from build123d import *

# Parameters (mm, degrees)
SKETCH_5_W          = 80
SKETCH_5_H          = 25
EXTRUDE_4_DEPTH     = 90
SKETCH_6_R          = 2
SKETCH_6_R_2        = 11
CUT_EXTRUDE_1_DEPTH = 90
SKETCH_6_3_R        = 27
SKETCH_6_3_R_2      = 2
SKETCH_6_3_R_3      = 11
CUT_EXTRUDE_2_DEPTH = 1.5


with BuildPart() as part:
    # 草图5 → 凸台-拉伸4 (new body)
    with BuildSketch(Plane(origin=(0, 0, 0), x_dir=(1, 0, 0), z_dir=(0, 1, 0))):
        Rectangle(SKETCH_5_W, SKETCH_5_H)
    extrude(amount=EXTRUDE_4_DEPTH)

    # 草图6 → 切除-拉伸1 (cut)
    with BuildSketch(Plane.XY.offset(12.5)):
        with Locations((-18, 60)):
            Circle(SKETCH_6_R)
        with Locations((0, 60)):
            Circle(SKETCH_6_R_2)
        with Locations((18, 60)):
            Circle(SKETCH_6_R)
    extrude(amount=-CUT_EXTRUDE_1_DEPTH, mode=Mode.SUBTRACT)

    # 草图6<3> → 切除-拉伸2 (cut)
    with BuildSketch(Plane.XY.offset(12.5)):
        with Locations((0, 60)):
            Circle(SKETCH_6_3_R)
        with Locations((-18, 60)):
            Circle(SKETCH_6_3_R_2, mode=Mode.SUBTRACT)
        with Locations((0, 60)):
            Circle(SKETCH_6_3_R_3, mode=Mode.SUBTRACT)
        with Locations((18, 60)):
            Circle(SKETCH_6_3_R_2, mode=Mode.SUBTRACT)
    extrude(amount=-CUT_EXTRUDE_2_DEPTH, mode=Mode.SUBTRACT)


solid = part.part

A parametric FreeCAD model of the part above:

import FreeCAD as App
import Part
import Sketcher


def add_polygon(sketch, points):
    """Adds a closed chain of lines whose ends are joined by coincident constraints."""
    first, n = sketch.GeometryCount, len(points)
    for a, b in zip(points, points[1:] + points[:1]):
        sketch.addGeometry(Part.LineSegment(App.Vector(*a, 0), App.Vector(*b, 0)), False)
    for i in range(n):
        sketch.addConstraint(Sketcher.Constraint("Coincident", first + i, 2, first + (i + 1) % n, 1))

doc = App.newDocument("Part")
body = doc.addObject("PartDesign::Body", "Body")

# Sketch on XZ plane
sketch1 = body.newObject("Sketcher::SketchObject", "Sketch")
sketch1.AttachmentSupport = (doc.getObject("XZ_Plane"), [""])
sketch1.MapMode = "FlatFace"
add_polygon(sketch1, [(-40, -12), (-40, 12), (40, 12), (40, -12)])  # lines 0-3
sketch1.addConstraint([
    Sketcher.Constraint("Vertical", 0),
    Sketcher.Constraint("Horizontal", 1),
    Sketcher.Constraint("Vertical", 2),
    Sketcher.Constraint("Horizontal", 3),
    Sketcher.Constraint("Symmetric", 0, 2, 2, 2, -1, 1),
    Sketcher.Constraint("DistanceX", 1, 1, 1, 2, 80.0),
    Sketcher.Constraint("DistanceY", 0, 1, 0, 2, 25.0),
])
pad1 = body.newObject("PartDesign::Pad", "Pad")
pad1.Profile = sketch1
pad1.Length = 90
pad1.Reversed = True

# Sketch on XY plane
sketch2 = body.newObject("Sketcher::SketchObject", "Sketch001")
sketch2.AttachmentSupport = (doc.getObject("XY_Plane"), [""])
sketch2.MapMode = "FlatFace"
sketch2.AttachmentOffset = App.Placement(App.Vector(0, 0, 12.5), App.Rotation())
sketch2.addGeometry([
    Part.Circle(App.Vector(-18, 60, 0), App.Vector(0, 0, 1), 2),
    Part.Circle(App.Vector(0, 60, 0), App.Vector(0, 0, 1), 11),
    Part.Circle(App.Vector(18, 60, 0), App.Vector(0, 0, 1), 2),
], False)
sketch2.addConstraint([
    Sketcher.Constraint("Equal", 0, 2),
    Sketcher.Constraint("Symmetric", 0, 3, 2, 3, -2),
    Sketcher.Constraint("PointOnObject", 1, 3, -2),
    Sketcher.Constraint("Horizontal", 0, 3, 1, 3),
    Sketcher.Constraint("Diameter", 0, 4.0),
    Sketcher.Constraint("Diameter", 1, 22.0),
    Sketcher.Constraint("DistanceX", 0, 3, -1, 1, 18.0),
    Sketcher.Constraint("DistanceY", -1, 1, 0, 3, 60.0),
])
pocket1 = body.newObject("PartDesign::Pocket", "Pocket")
pocket1.Profile = sketch2
pocket1.Length = 90

# Sketch on XY plane
sketch3 = body.newObject("Sketcher::SketchObject", "Sketch002")
sketch3.AttachmentSupport = (doc.getObject("XY_Plane"), [""])
sketch3.MapMode = "FlatFace"
sketch3.AttachmentOffset = App.Placement(App.Vector(0, 0, 12.5), App.Rotation())
sketch3.addGeometry([
    Part.Circle(App.Vector(0, 60, 0), App.Vector(0, 0, 1), 27),
    Part.Circle(App.Vector(-18, 60, 0), App.Vector(0, 0, 1), 2),
    Part.Circle(App.Vector(0, 60, 0), App.Vector(0, 0, 1), 11),
    Part.Circle(App.Vector(18, 60, 0), App.Vector(0, 0, 1), 2),
], False)
sketch3.addConstraint([
    Sketcher.Constraint("Coincident", 2, 3, 0, 3),
    Sketcher.Constraint("Equal", 1, 3),
    Sketcher.Constraint("Symmetric", 1, 3, 3, 3, -2),
    Sketcher.Constraint("PointOnObject", 0, 3, -2),
    Sketcher.Constraint("Horizontal", 0, 3, 1, 3),
    Sketcher.Constraint("Diameter", 0, 54.0),
    Sketcher.Constraint("Diameter", 1, 4.0),
    Sketcher.Constraint("Diameter", 2, 22.0),
    Sketcher.Constraint("DistanceY", -1, 1, 0, 3, 60.0),
    Sketcher.Constraint("DistanceX", 1, 3, -1, 1, 18.0),
])
pocket2 = body.newObject("PartDesign::Pocket", "Pocket001")
pocket2.Profile = sketch3
pocket2.Length = 1.5

doc.recompute()
